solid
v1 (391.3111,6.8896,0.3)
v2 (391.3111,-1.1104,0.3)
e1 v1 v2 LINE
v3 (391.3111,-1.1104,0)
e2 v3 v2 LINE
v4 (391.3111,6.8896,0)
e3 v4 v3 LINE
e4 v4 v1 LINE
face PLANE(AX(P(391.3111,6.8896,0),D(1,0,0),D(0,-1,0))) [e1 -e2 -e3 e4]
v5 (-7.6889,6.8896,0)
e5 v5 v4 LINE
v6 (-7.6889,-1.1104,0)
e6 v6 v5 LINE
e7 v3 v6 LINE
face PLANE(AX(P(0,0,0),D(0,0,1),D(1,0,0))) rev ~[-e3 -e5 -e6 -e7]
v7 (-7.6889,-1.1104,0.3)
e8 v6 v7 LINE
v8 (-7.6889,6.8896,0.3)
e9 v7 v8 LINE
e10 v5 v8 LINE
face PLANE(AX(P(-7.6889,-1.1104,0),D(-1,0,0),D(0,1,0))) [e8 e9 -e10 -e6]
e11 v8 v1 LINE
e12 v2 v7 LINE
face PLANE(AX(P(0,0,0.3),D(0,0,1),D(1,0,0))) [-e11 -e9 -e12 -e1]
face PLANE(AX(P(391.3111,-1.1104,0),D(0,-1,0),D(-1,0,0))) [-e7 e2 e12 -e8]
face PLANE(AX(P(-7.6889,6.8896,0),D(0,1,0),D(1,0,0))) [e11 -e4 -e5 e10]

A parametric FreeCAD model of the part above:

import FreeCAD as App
import Part
import Sketcher
from FreeCAD import Vector
Q = App.Units.Quantity


def add_polygon(sketch, points):
    """Adds a closed chain of lines whose ends are joined by coincident constraints."""
    first, n = sketch.GeometryCount, len(points)
    for a, b in zip(points, points[1:] + points[:1]):
        sketch.addGeometry(Part.LineSegment(App.Vector(*a, 0), App.Vector(*b, 0)), False)
    for i in range(n):
        sketch.addConstraint(Sketcher.Constraint("Coincident", first + i, 2, first + (i + 1) % n, 1))

doc = App.newDocument("Part")
params = doc.addObject("Spreadsheet::Sheet", "Params")
for row, (alias, value) in enumerate([
    ("sketch1_width", "399 mm"),
    ("sketch1_height", "8 mm"),
    ("pad1_length", "0.3 mm"),
], start=1):
    params.set(f"A{row}", alias)
    params.set(f"B{row}", "=" + value)
    params.setAlias(f"B{row}", alias)

body = doc.addObject("PartDesign::Body", "Body")

sketch1 = body.newObject("Sketcher::SketchObject", "Sketch")
sketch1.AttachmentSupport = (doc.getObject("XY_Plane"), [""])
sketch1.MapMode = "FlatFace"
add_polygon(sketch1, [(391.3111, 6.8896), (-7.6889, 6.8896), (-7.6889, -1.1104), (391.3111, -1.1104)])
sketch1.addConstraint([
    Sketcher.Constraint("Horizontal", 0),
    Sketcher.Constraint("Vertical", 1),
    Sketcher.Constraint("Horizontal", 2),
    Sketcher.Constraint("Vertical", 3),
    Sketcher.Constraint("DistanceX", 0, 2, 0, 1, Q("399 mm")),
    Sketcher.Constraint("DistanceY", 1, 2, 1, 1, Q("8 mm")),
    Sketcher.Constraint("DistanceX", 0, 2, -1, 1, Q("7.689 mm")),
    Sketcher.Constraint("DistanceY", -1, 1, 0, 2, Q("6.8896 mm")),
])
sketch1.setExpression("Constraints[8]", "Params.sketch1_width")
sketch1.setExpression("Constraints[9]", "Params.sketch1_height")
pad1 = body.newObject("PartDesign::Pad", "Pad")
pad1.Profile = sketch1
pad1.setExpression("Length", "Params.pad1_length")

doc.recompute()
